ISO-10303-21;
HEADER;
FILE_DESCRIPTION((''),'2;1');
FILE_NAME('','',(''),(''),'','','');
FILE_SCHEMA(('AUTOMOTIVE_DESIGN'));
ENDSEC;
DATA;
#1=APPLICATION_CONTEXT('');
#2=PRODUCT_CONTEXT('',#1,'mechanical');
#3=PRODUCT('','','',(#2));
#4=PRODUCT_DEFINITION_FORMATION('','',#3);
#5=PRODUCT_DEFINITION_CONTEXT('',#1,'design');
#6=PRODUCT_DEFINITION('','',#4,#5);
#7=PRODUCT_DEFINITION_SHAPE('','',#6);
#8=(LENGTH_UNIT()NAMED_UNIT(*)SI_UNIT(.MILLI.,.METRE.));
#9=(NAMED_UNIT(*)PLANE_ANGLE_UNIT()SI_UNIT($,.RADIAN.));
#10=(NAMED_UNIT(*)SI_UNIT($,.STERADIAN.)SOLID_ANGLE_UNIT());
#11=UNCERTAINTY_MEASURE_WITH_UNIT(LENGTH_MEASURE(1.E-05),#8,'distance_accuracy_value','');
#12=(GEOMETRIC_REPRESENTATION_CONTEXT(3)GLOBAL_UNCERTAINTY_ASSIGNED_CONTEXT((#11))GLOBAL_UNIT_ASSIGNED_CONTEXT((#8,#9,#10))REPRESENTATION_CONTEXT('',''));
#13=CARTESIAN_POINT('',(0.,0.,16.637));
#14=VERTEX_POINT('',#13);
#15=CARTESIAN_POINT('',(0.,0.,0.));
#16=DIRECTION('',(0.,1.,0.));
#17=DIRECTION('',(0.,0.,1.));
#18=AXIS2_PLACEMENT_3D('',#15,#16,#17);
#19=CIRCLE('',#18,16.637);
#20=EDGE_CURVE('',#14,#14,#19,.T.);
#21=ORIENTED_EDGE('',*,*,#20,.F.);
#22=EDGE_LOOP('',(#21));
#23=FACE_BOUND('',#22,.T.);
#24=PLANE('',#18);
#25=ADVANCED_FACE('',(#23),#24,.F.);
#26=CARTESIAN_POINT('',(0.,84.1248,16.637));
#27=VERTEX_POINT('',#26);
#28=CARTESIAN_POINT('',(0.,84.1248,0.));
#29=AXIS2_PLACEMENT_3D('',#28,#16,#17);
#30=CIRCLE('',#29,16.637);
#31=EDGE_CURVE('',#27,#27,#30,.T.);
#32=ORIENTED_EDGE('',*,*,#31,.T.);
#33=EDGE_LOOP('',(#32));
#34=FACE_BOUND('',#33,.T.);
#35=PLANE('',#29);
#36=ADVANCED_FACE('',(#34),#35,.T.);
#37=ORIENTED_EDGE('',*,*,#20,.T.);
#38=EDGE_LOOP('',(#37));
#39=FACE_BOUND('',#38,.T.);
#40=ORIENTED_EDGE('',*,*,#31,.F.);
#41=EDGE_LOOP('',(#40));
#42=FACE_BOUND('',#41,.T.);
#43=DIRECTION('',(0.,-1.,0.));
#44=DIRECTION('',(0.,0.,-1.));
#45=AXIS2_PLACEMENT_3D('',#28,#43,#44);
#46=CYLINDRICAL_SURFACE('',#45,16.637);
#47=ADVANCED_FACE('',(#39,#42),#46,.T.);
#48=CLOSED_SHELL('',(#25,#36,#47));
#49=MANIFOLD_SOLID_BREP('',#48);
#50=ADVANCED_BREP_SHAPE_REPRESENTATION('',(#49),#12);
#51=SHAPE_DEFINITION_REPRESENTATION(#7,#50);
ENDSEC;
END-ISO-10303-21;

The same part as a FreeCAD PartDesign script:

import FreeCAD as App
import Part
import Sketcher
Q = App.Units.Quantity

doc = App.newDocument("Part")
body = doc.addObject("PartDesign::Body", "Body")

sketch1 = doc.addObject("Sketcher::SketchObject", "Sketch")
body.addObject(sketch1)
sketch1.AttachmentSupport = (doc.XZ_Plane, [""])
sketch1.MapMode = "FlatFace"
sketch1.addGeometry(Part.Circle(App.Vector(0, 0, 0), App.Vector(0, 0, 1), 17), False)
sketch1.addConstraint([
    Sketcher.Constraint("Coincident", 0, 3, -1, 1),
    Sketcher.Constraint("Diameter", 0, Q("1.31 in")),
])
pad1 = doc.addObject("PartDesign::Pad", "Pad")
body.addObject(pad1)
pad1.Profile = sketch1
pad1.Length = Q("3.312 in")
pad1.Reversed = True

doc.recompute()
